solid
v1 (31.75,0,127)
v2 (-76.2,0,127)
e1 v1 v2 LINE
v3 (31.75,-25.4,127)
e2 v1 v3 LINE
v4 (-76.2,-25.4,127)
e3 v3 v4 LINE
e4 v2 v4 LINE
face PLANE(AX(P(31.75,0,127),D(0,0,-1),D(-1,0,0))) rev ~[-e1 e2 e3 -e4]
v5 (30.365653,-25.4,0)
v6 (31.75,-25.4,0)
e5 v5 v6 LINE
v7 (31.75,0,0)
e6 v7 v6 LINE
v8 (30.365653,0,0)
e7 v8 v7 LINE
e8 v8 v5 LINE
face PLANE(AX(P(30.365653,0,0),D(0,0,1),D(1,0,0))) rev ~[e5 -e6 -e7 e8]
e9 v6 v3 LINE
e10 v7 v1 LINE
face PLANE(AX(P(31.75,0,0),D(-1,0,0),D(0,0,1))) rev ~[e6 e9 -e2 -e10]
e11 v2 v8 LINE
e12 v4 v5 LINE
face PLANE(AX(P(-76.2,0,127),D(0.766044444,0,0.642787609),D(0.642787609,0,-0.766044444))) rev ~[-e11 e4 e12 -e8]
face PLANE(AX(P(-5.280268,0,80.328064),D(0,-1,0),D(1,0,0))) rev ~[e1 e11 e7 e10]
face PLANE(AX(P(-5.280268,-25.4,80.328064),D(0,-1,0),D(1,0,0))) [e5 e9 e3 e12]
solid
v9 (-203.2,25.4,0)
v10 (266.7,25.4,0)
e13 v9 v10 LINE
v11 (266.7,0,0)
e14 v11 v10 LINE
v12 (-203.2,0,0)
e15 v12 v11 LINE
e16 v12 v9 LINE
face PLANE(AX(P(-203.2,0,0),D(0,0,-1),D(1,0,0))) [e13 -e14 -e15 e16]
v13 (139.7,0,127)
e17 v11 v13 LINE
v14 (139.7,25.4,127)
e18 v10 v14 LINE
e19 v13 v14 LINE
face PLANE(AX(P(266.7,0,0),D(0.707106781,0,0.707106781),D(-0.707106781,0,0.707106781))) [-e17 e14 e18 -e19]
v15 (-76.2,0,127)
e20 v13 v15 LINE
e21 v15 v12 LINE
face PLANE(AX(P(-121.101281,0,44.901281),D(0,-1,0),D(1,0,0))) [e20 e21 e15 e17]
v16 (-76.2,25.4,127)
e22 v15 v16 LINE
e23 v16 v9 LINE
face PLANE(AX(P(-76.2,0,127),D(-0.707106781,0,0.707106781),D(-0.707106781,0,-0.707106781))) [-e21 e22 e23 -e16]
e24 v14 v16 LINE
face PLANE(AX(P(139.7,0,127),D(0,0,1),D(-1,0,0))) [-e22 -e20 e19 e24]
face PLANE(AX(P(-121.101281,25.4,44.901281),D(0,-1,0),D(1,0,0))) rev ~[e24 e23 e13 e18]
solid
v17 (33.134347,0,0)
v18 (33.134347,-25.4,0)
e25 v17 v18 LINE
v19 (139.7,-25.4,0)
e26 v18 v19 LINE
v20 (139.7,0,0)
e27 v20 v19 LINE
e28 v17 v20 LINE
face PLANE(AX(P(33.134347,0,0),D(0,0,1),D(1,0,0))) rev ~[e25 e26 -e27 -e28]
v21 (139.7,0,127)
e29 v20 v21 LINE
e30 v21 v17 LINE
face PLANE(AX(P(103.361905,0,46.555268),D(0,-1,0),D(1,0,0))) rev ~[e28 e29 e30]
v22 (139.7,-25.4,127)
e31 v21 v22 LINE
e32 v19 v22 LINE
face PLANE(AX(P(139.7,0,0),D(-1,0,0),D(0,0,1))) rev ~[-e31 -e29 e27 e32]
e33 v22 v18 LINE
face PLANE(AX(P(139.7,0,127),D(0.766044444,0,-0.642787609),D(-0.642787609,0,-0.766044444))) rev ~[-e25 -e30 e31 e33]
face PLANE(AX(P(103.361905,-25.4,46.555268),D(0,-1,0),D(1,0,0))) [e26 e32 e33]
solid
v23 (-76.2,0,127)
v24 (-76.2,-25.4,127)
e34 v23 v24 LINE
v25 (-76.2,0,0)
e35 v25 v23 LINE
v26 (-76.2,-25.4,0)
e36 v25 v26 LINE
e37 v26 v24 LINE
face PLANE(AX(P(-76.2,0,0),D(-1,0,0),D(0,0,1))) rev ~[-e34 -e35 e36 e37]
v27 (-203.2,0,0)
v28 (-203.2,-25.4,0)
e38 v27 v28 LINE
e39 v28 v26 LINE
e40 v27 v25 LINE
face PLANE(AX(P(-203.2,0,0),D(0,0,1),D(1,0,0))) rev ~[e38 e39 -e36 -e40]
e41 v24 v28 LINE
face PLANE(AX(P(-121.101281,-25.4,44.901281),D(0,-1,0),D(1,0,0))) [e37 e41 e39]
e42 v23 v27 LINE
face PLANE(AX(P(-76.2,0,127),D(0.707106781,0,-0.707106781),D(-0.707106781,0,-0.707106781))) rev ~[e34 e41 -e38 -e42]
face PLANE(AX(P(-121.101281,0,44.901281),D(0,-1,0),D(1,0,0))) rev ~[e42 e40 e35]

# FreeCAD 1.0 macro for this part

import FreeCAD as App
import Part
import Sketcher
Q = App.Units.Quantity

doc = App.newDocument("Part")
body = doc.addObject("PartDesign::Body", "Body")
body.AllowCompound = True

# Sketch on XZ plane
sketch1 = doc.addObject("Sketcher::SketchObject", "Sketch")
body.addObject(sketch1)
sketch1.AttachmentSupport = (doc.XZ_Plane, [""])
sketch1.MapMode = "FlatFace"
sketch1.addGeometry([
    Part.LineSegment(App.Vector(-76.2, 127, 0), App.Vector(-203.2, 0, 0)),  # 0
    Part.LineSegment(App.Vector(-203.2, 0, 0), App.Vector(-76.2, 0, 0)),  # 1
    Part.LineSegment(App.Vector(-76.2, 0, 0), App.Vector(-76.2, 127, 0)),  # 2
    Part.LineSegment(App.Vector(31.8, 127, 0), App.Vector(-76.2, 127, 0)),  # 3
    Part.LineSegment(App.Vector(-76.2, 127, 0), App.Vector(30.4, 0, 0)),  # 4
    Part.LineSegment(App.Vector(30.4, 0, 0), App.Vector(31.8, 0, 0)),  # 5
    Part.LineSegment(App.Vector(31.8, 0, 0), App.Vector(31.8, 127, 0)),  # 6
    Part.LineSegment(App.Vector(139.7, 0, 0), App.Vector(139.7, 127, 0)),  # 7
    Part.LineSegment(App.Vector(139.7, 127, 0), App.Vector(33.1, 0, 0)),  # 8
    Part.LineSegment(App.Vector(33.1, 0, 0), App.Vector(139.7, 0, 0)),  # 9
], False)
sketch1.addConstraint([
    Sketcher.Constraint("Coincident", 0, 2, 1, 1),
    Sketcher.Constraint("Coincident", 1, 2, 2, 1),
    Sketcher.Constraint("Coincident", 2, 2, 0, 1),
    Sketcher.Constraint("Coincident", 3, 2, 4, 1),
    Sketcher.Constraint("Coincident", 4, 2, 5, 1),
    Sketcher.Constraint("Coincident", 5, 2, 6, 1),
    Sketcher.Constraint("Coincident", 6, 2, 3, 1),
    Sketcher.Constraint("Coincident", 7, 2, 8, 1),
    Sketcher.Constraint("Coincident", 8, 2, 9, 1),
    Sketcher.Constraint("Coincident", 9, 2, 7, 1),
    Sketcher.Constraint("Horizontal", 1),
    Sketcher.Constraint("Vertical", 2),
    Sketcher.Constraint("Horizontal", 3),
    Sketcher.Constraint("Horizontal", 5),
    Sketcher.Constraint("Vertical", 6),
    Sketcher.Constraint("Vertical", 7),
    Sketcher.Constraint("Horizontal", 9),
    Sketcher.Constraint("Coincident", 3, 2, 2, 2),
    Sketcher.Constraint("PointOnObject", 0, 2, -1),
    Sketcher.Constraint("PointOnObject", 4, 2, -1),
    Sketcher.Constraint("PointOnObject", 8, 2, -1),
    Sketcher.Constraint("Horizontal", 6, 2, 7, 2),
    Sketcher.Constraint("Equal", 1, 2),
    Sketcher.Constraint("Equal", 4, 8),
    Sketcher.Constraint("DistanceX", 1, 1, 1, 2, Q("5 in")),
    Sketcher.Constraint("DistanceX", 0, 2, -1, 1, Q("8 in")),
    Sketcher.Constraint("Angle", 4, Q("-50 deg")),
    Sketcher.Constraint("DistanceX", 3, 2, 3, 1, Q("4.25 in")),
    Sketcher.Constraint("DistanceX", -1, 1, 7, 2, Q("5.5 in")),
])
pad1 = doc.addObject("PartDesign::Pad", "Pad")
body.addObject(pad1)
pad1.Profile = sketch1
pad1.Length = Q("1 in")
body2 = doc.addObject("PartDesign::Body", "Body001")

# Sketch on XZ plane
sketch2 = doc.addObject("Sketcher::SketchObject", "Sketch001")
body2.addObject(sketch2)
sketch2.AttachmentSupport = (doc.getObject("XZ_Plane001"), [""])
sketch2.MapMode = "FlatFace"
sketch2.addGeometry([
    Part.LineSegment(App.Vector(-76, 127, 0), App.Vector(-203, 0, 0)),
    Part.LineSegment(App.Vector(-203, 0, 0), App.Vector(267, 0, 0)),
    Part.LineSegment(App.Vector(267, 0, 0), App.Vector(140, 127, 0)),
    Part.LineSegment(App.Vector(140, 127, 0), App.Vector(-76, 127, 0)),
], False)
sketch2.addConstraint([
    Sketcher.Constraint("Coincident", 0, 2, 1, 1),
    Sketcher.Constraint("Coincident", 1, 2, 2, 1),
    Sketcher.Constraint("Coincident", 2, 2, 3, 1),
    Sketcher.Constraint("Coincident", 3, 2, 0, 1),
    Sketcher.Constraint("Horizontal", 1),
    Sketcher.Constraint("Horizontal", 3),
    Sketcher.Constraint("PointOnObject", 0, 2, -1),
    Sketcher.Constraint("Perpendicular", 0, 2),
    Sketcher.Constraint("Equal", 0, 2),
    Sketcher.Constraint("DistanceX", 1, 1, 1, 2, Q("18.5 in")),
    Sketcher.Constraint("DistanceX", 3, 2, 3, 1, Q("8.5 in")),
    Sketcher.Constraint("DistanceX", 0, 2, -1, 1, Q("8 in")),
])
pad2 = doc.addObject("PartDesign::Pad", "Pad001")
body2.addObject(pad2)
pad2.Profile = sketch2
pad2.Length = Q("1 in")
pad2.Reversed = True

doc.recompute()
